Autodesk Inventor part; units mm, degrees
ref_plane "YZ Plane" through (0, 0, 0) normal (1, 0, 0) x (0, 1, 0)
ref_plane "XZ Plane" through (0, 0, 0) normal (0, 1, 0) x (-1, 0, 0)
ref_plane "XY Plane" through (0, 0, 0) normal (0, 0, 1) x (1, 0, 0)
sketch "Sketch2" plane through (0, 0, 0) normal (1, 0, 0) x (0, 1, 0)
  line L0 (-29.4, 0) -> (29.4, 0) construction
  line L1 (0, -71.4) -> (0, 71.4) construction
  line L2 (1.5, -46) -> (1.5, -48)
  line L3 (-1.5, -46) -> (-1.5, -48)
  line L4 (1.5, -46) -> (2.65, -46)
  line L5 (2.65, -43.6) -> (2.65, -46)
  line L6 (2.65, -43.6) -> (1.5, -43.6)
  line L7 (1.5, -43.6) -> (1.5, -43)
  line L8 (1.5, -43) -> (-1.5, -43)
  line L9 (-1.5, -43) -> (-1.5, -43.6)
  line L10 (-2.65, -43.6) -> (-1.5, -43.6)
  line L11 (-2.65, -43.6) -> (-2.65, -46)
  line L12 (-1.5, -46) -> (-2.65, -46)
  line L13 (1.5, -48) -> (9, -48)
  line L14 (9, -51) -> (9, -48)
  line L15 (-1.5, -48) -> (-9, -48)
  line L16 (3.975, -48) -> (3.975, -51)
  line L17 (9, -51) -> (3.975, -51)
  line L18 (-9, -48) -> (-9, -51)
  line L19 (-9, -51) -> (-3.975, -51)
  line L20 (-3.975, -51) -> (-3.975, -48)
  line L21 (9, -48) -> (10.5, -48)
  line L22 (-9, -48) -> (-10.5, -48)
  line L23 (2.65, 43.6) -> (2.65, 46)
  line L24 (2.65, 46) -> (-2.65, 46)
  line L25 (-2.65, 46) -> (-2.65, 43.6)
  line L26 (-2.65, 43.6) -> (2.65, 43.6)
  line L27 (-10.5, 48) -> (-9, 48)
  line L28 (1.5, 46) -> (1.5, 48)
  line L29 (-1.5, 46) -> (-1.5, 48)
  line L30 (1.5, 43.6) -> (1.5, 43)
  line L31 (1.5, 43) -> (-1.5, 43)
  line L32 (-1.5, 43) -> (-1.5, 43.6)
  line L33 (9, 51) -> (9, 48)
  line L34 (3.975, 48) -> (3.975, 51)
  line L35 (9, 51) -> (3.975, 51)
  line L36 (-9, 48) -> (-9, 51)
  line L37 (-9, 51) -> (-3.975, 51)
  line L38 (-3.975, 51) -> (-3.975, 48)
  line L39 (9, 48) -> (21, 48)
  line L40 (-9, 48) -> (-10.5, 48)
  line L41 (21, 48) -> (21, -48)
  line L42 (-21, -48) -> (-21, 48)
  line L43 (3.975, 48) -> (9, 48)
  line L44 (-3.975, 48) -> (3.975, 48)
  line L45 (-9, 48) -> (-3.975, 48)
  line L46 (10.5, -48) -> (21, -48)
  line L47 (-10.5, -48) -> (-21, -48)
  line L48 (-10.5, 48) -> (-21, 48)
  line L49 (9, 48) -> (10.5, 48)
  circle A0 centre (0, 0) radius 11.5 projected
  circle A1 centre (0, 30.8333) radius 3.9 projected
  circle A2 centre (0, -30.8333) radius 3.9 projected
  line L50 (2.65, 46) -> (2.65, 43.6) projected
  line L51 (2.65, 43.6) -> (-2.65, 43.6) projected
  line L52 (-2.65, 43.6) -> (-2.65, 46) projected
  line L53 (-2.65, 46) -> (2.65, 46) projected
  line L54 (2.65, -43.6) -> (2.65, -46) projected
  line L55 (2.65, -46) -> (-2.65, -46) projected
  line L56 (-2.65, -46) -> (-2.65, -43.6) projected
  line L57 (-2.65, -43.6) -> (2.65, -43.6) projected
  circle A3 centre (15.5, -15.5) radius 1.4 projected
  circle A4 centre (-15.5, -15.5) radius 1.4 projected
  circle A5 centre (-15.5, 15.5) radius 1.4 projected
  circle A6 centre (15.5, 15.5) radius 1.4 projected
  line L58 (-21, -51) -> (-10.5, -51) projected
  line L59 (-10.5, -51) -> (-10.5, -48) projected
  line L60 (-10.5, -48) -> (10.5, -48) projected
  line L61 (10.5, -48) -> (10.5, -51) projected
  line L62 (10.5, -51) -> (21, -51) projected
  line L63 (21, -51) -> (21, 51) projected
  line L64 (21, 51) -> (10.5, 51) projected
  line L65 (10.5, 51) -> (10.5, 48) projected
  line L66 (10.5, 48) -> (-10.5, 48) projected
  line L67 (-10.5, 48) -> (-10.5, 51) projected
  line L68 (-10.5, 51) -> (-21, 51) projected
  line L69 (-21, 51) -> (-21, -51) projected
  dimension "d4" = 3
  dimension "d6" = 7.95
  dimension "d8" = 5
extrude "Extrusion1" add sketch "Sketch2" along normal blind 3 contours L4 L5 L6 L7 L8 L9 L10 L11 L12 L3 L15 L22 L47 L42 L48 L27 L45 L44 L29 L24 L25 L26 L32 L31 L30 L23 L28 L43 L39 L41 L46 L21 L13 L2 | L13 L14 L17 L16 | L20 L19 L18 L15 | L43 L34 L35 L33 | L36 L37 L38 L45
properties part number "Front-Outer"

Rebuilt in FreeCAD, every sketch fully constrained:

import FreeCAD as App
import Part
import Sketcher

doc = App.newDocument("Part")
params = doc.addObject("Spreadsheet::Sheet", "Params")
for row, (alias, value) in enumerate([
    ("sketch1_width", "3 mm"),
    ("sketch1_diameter", "23 mm"),
    ("sketch1_diameter2", "2.8 mm"),
    ("sketch1_diameter3", "7.8 mm"),
    ("sketch1_width2", "12 mm"),
    ("pad1_length", "3 mm"),
], start=1):
    params.set(f"A{row}", alias)
    params.set(f"B{row}", "=" + value)
    params.setAlias(f"B{row}", alias)

body = doc.addObject("PartDesign::Body", "Body")

# Sketch on YZ plane
sketch1 = body.newObject("Sketcher::SketchObject", "Sketch")
sketch1.AttachmentSupport = (doc.getObject("YZ_Plane"), [""])
sketch1.MapMode = "FlatFace"
sketch1.addGeometry(Part.LineSegment(App.Vector(2.6, -46, 0), App.Vector(1.5, -46, 0)), False)
sketch1.addGeometry(Part.LineSegment(App.Vector(1.5, -46, 0), App.Vector(1.5, -48, 0)), False)
sketch1.addGeometry(Part.LineSegment(App.Vector(1.5, -48, 0), App.Vector(4, -48, 0)), False)
sketch1.addGeometry(Part.LineSegment(App.Vector(4, -48, 0), App.Vector(4, -51, 0)), False)
sketch1.addGeometry(Part.LineSegment(App.Vector(4, -51, 0), App.Vector(9, -51, 0)), False)
sketch1.addGeometry(Part.LineSegment(App.Vector(9, -51, 0), App.Vector(9, -48, 0)), False)
sketch1.addGeometry(Part.LineSegment(App.Vector(9, -48, 0), App.Vector(21, -48, 0)), False)
sketch1.addGeometry(Part.LineSegment(App.Vector(21, -48, 0), App.Vector(21, 48, 0)), False)
sketch1.addGeometry(Part.LineSegment(App.Vector(21, 48, 0), App.Vector(9, 48, 0)), False)
sketch1.addGeometry(Part.LineSegment(App.Vector(9, 48, 0), App.Vector(9, 51, 0)), False)
sketch1.addGeometry(Part.LineSegment(App.Vector(9, 51, 0), App.Vector(4, 51, 0)), False)
sketch1.addGeometry(Part.LineSegment(App.Vector(4, 51, 0), App.Vector(4, 48, 0)), False)
sketch1.addGeometry(Part.LineSegment(App.Vector(4, 48, 0), App.Vector(1.5, 48, 0)), False)
sketch1.addGeometry(Part.LineSegment(App.Vector(1.5, 48, 0), App.Vector(1.5, 46, 0)), False)
sketch1.addGeometry(Part.LineSegment(App.Vector(1.5, 46, 0), App.Vector(2.6, 46, 0)), False)
sketch1.addGeometry(Part.LineSegment(App.Vector(2.6, 46, 0), App.Vector(2.6, 43.6, 0)), False)
sketch1.addGeometry(Part.LineSegment(App.Vector(2.6, 43.6, 0), App.Vector(1.5, 43.6, 0)), False)
sketch1.addGeometry(Part.LineSegment(App.Vector(1.5, 43.6, 0), App.Vector(1.5, 43, 0)), False)
sketch1.addGeometry(Part.LineSegment(App.Vector(1.5, 43, 0), App.Vector(-1.5, 43, 0)), False)
sketch1.addGeometry(Part.LineSegment(App.Vector(-1.5, 43, 0), App.Vector(-1.5, 43.6, 0)), False)
sketch1.addGeometry(Part.LineSegment(App.Vector(-1.5, 43.6, 0), App.Vector(-2.6, 43.6, 0)), False)
sketch1.addGeometry(Part.LineSegment(App.Vector(-2.6, 43.6, 0), App.Vector(-2.6, 46, 0)), False)
sketch1.addGeometry(Part.LineSegment(App.Vector(-2.6, 46, 0), App.Vector(-1.5, 46, 0)), False)
sketch1.addGeometry(Part.LineSegment(App.Vector(-1.5, 46, 0), App.Vector(-1.5, 48, 0)), False)
sketch1.addGeometry(Part.LineSegment(App.Vector(-1.5, 48, 0), App.Vector(-4, 48, 0)), False)
sketch1.addGeometry(Part.LineSegment(App.Vector(-4, 48, 0), App.Vector(-4, 51, 0)), False)
sketch1.addGeometry(Part.LineSegment(App.Vector(-4, 51, 0), App.Vector(-9, 51, 0)), False)
sketch1.addGeometry(Part.LineSegment(App.Vector(-9, 51, 0), App.Vector(-9, 48, 0)), False)
sketch1.addGeometry(Part.LineSegment(App.Vector(-9, 48, 0), App.Vector(-21, 48, 0)), False)
sketch1.addGeometry(Part.LineSegment(App.Vector(-21, 48, 0), App.Vector(-21, -48, 0)), False)
sketch1.addGeometry(Part.LineSegment(App.Vector(-21, -48, 0), App.Vector(-9, -48, 0)), False)
sketch1.addGeometry(Part.LineSegment(App.Vector(-9, -48, 0), App.Vector(-9, -51, 0)), False)
sketch1.addGeometry(Part.LineSegment(App.Vector(-9, -51, 0), App.Vector(-4, -51, 0)), False)
sketch1.addGeometry(Part.LineSegment(App.Vector(-4, -51, 0), App.Vector(-4, -48, 0)), False)
sketch1.addGeometry(Part.LineSegment(App.Vector(-4, -48, 0), App.Vector(-1.5, -48, 0)), False)
sketch1.addGeometry(Part.LineSegment(App.Vector(-1.5, -48, 0), App.Vector(-1.5, -46, 0)), False)
sketch1.addGeometry(Part.LineSegment(App.Vector(-1.5, -46, 0), App.Vector(-2.6, -46, 0)), False)
sketch1.addGeometry(Part.LineSegment(App.Vector(-2.6, -46, 0), App.Vector(-2.6, -43.6, 0)), False)
sketch1.addGeometry(Part.LineSegment(App.Vector(-2.6, -43.6, 0), App.Vector(-1.5, -43.6, 0)), False)
sketch1.addGeometry(Part.LineSegment(App.Vector(-1.5, -43.6, 0), App.Vector(-1.5, -43, 0)), False)
sketch1.addGeometry(Part.LineSegment(App.Vector(-1.5, -43, 0), App.Vector(1.5, -43, 0)), False)
sketch1.addGeometry(Part.LineSegment(App.Vector(1.5, -43, 0), App.Vector(1.5, -43.6, 0)), False)
sketch1.addGeometry(Part.LineSegment(App.Vector(1.5, -43.6, 0), App.Vector(2.6, -43.6, 0)), False)
sketch1.addGeometry(Part.LineSegment(App.Vector(2.6, -43.6, 0), App.Vector(2.6, -46, 0)), False)
sketch1.addGeometry(Part.Circle(App.Vector(-15.5, -15.5, 0), App.Vector(0, 0, 1), 1.4), False)
sketch1.addGeometry(Part.Circle(App.Vector(0, -30.8, 0), App.Vector(0, 0, 1), 3.9), False)
sketch1.addGeometry(Part.Circle(App.Vector(15.5, -15.5, 0), App.Vector(0, 0, 1), 1.4), False)
sketch1.addGeometry(Part.Circle(App.Vector(-15.5, 15.5, 0), App.Vector(0, 0, 1), 1.4), False)
sketch1.addGeometry(Part.Circle(App.Vector(0, 0, 0), App.Vector(0, 0, 1), 11.5), False)
sketch1.addGeometry(Part.Circle(App.Vector(15.5, 15.5, 0), App.Vector(0, 0, 1), 1.4), False)
sketch1.addGeometry(Part.Circle(App.Vector(0, 30.8, 0), App.Vector(0, 0, 1), 3.9), False)
sketch1.addConstraint(Sketcher.Constraint("Coincident", 0, 2, 1, 1))
sketch1.addConstraint(Sketcher.Constraint("Coincident", 1, 2, 2, 1))
sketch1.addConstraint(Sketcher.Constraint("Coincident", 2, 2, 3, 1))
sketch1.addConstraint(Sketcher.Constraint("Coincident", 3, 2, 4, 1))
sketch1.addConstraint(Sketcher.Constraint("Coincident", 4, 2, 5, 1))
sketch1.addConstraint(Sketcher.Constraint("Coincident", 5, 2, 6, 1))
sketch1.addConstraint(Sketcher.Constraint("Coincident", 6, 2, 7, 1))
sketch1.addConstraint(Sketcher.Constraint("Coincident", 7, 2, 8, 1))
sketch1.addConstraint(Sketcher.Constraint("Coincident", 8, 2, 9, 1))
sketch1.addConstraint(Sketcher.Constraint("Coincident", 9, 2, 10, 1))
sketch1.addConstraint(Sketcher.Constraint("Coincident", 10, 2, 11, 1))
sketch1.addConstraint(Sketcher.Constraint("Coincident", 11, 2, 12, 1))
sketch1.addConstraint(Sketcher.Constraint("Coincident", 12, 2, 13, 1))
sketch1.addConstraint(Sketcher.Constraint("Coincident", 13, 2, 14, 1))
sketch1.addConstraint(Sketcher.Constraint("Coincident", 14, 2, 15, 1))
sketch1.addConstraint(Sketcher.Constraint("Coincident", 15, 2, 16, 1))
sketch1.addConstraint(Sketcher.Constraint("Coincident", 16, 2, 17, 1))
sketch1.addConstraint(Sketcher.Constraint("Coincident", 17, 2, 18, 1))
sketch1.addConstraint(Sketcher.Constraint("Coincident", 18, 2, 19, 1))
sketch1.addConstraint(Sketcher.Constraint("Coincident", 19, 2, 20, 1))
sketch1.addConstraint(Sketcher.Constraint("Coincident", 20, 2, 21, 1))
sketch1.addConstraint(Sketcher.Constraint("Coincident", 21, 2, 22, 1))
sketch1.addConstraint(Sketcher.Constraint("Coincident", 22, 2, 23, 1))
sketch1.addConstraint(Sketcher.Constraint("Coincident", 23, 2, 24, 1))
sketch1.addConstraint(Sketcher.Constraint("Coincident", 24, 2, 25, 1))
sketch1.addConstraint(Sketcher.Constraint("Coincident", 25, 2, 26, 1))
sketch1.addConstraint(Sketcher.Constraint("Coincident", 26, 2, 27, 1))
sketch1.addConstraint(Sketcher.Constraint("Coincident", 27, 2, 28, 1))
sketch1.addConstraint(Sketcher.Constraint("Coincident", 28, 2, 29, 1))
sketch1.addConstraint(Sketcher.Constraint("Coincident", 29, 2, 30, 1))
sketch1.addConstraint(Sketcher.Constraint("Coincident", 30, 2, 31, 1))
sketch1.addConstraint(Sketcher.Constraint("Coincident", 31, 2, 32, 1))
sketch1.addConstraint(Sketcher.Constraint("Coincident", 32, 2, 33, 1))
sketch1.addConstraint(Sketcher.Constraint("Coincident", 33, 2, 34, 1))
sketch1.addConstraint(Sketcher.Constraint("Coincident", 34, 2, 35, 1))
sketch1.addConstraint(Sketcher.Constraint("Coincident", 35, 2, 36, 1))
sketch1.addConstraint(Sketcher.Constraint("Coincident", 36, 2, 37, 1))
sketch1.addConstraint(Sketcher.Constraint("Coincident", 37, 2, 38, 1))
sketch1.addConstraint(Sketcher.Constraint("Coincident", 38, 2, 39, 1))
sketch1.addConstraint(Sketcher.Constraint("Coincident", 39, 2, 40, 1))
sketch1.addConstraint(Sketcher.Constraint("Coincident", 40, 2, 41, 1))
sketch1.addConstraint(Sketcher.Constraint("Coincident", 41, 2, 42, 1))
sketch1.addConstraint(Sketcher.Constraint("Coincident", 42, 2, 43, 1))
sketch1.addConstraint(Sketcher.Constraint("Coincident", 43, 2, 0, 1))
sketch1.addConstraint(Sketcher.Constraint("Horizontal", 0))
sketch1.addConstraint(Sketcher.Constraint("Vertical", 1))
sketch1.addConstraint(Sketcher.Constraint("Horizontal", 2))
sketch1.addConstraint(Sketcher.Constraint("Vertical", 3))
sketch1.addConstraint(Sketcher.Constraint("Horizontal", 4))
sketch1.addConstraint(Sketcher.Constraint("Vertical", 5))
sketch1.addConstraint(Sketcher.Constraint("Horizontal", 6))
sketch1.addConstraint(Sketcher.Constraint("Vertical", 7))
sketch1.addConstraint(Sketcher.Constraint("Horizontal", 8))
sketch1.addConstraint(Sketcher.Constraint("Vertical", 9))
sketch1.addConstraint(Sketcher.Constraint("Horizontal", 10))
sketch1.addConstraint(Sketcher.Constraint("Vertical", 11))
sketch1.addConstraint(Sketcher.Constraint("Horizontal", 12))
sketch1.addConstraint(Sketcher.Constraint("Vertical", 13))
sketch1.addConstraint(Sketcher.Constraint("Horizontal", 14))
sketch1.addConstraint(Sketcher.Constraint("Vertical", 15))
sketch1.addConstraint(Sketcher.Constraint("Horizontal", 16))
sketch1.addConstraint(Sketcher.Constraint("Vertical", 17))
sketch1.addConstraint(Sketcher.Constraint("Horizontal", 18))
sketch1.addConstraint(Sketcher.Constraint("Vertical", 19))
sketch1.addConstraint(Sketcher.Constraint("Horizontal", 20))
sketch1.addConstraint(Sketcher.Constraint("Vertical", 21))
sketch1.addConstraint(Sketcher.Constraint("Horizontal", 22))
sketch1.addConstraint(Sketcher.Constraint("Vertical", 23))
sketch1.addConstraint(Sketcher.Constraint("Horizontal", 24))
sketch1.addConstraint(Sketcher.Constraint("Vertical", 25))
sketch1.addConstraint(Sketcher.Constraint("Horizontal", 26))
sketch1.addConstraint(Sketcher.Constraint("Vertical", 27))
sketch1.addConstraint(Sketcher.Constraint("Horizontal", 28))
sketch1.addConstraint(Sketcher.Constraint("Vertical", 29))
sketch1.addConstraint(Sketcher.Constraint("Horizontal", 30))
sketch1.addConstraint(Sketcher.Constraint("Vertical", 31))
sketch1.addConstraint(Sketcher.Constraint("Horizontal", 32))
sketch1.addConstraint(Sketcher.Constraint("Vertical", 33))
sketch1.addConstraint(Sketcher.Constraint("Horizontal", 34))
sketch1.addConstraint(Sketcher.Constraint("Vertical", 35))
sketch1.addConstraint(Sketcher.Constraint("Horizontal", 36))
sketch1.addConstraint(Sketcher.Constraint("Vertical", 37))
sketch1.addConstraint(Sketcher.Constraint("Horizontal", 38))
sketch1.addConstraint(Sketcher.Constraint("Vertical", 39))
sketch1.addConstraint(Sketcher.Constraint("Horizontal", 40))
sketch1.addConstraint(Sketcher.Constraint("Vertical", 41))
sketch1.addConstraint(Sketcher.Constraint("Horizontal", 42))
sketch1.addConstraint(Sketcher.Constraint("Vertical", 43))
sketch1.addConstraint(Sketcher.Constraint("Coincident", 48, 3, -1, 1))
sketch1.addConstraint(Sketcher.Constraint("Equal", 44, 46))
sketch1.addConstraint(Sketcher.Constraint("Equal", 46, 47))
sketch1.addConstraint(Sketcher.Constraint("Equal", 47, 49))
sketch1.addConstraint(Sketcher.Constraint("Equal", 45, 50))
sketch1.addConstraint(Sketcher.Constraint("Symmetric", 46, 3, 47, 3, -1, 1))
sketch1.addConstraint(Sketcher.Constraint("Symmetric", 44, 3, 49, 3, -1, 1))
sketch1.addConstraint(Sketcher.Constraint("Symmetric", 45, 3, 50, 3, -1, 1))
sketch1.addConstraint(Sketcher.Constraint("Symmetric", 0, 2, 22, 2, -1, 1))
sketch1.addConstraint(Sketcher.Constraint("Symmetric", 2, 2, 24, 2, -1, 1))
sketch1.addConstraint(Sketcher.Constraint("Symmetric", 4, 2, 26, 2, -1, 1))
sketch1.addConstraint(Sketcher.Constraint("Symmetric", 6, 2, 28, 2, -1, 1))
sketch1.addConstraint(Sketcher.Constraint("Symmetric", 8, 2, 30, 2, -1, 1))
sketch1.addConstraint(Sketcher.Constraint("Symmetric", 10, 2, 32, 2, -1, 1))
sketch1.addConstraint(Sketcher.Constraint("Symmetric", 12, 2, 34, 2, -1, 1))
sketch1.addConstraint(Sketcher.Constraint("Symmetric", 14, 2, 36, 2, -1, 1))
sketch1.addConstraint(Sketcher.Constraint("Symmetric", 16, 2, 38, 2, -1, 1))
sketch1.addConstraint(Sketcher.Constraint("Symmetric", 18, 2, 40, 2, -1, 1))
sketch1.addConstraint(Sketcher.Constraint("Symmetric", 20, 2, 42, 2, -1, 1))
sketch1.addConstraint(Sketcher.Constraint("Symmetric", 44, 3, 46, 3, -2))
sketch1.addConstraint(Sketcher.Constraint("Symmetric", 16, 2, 19, 2, -2))
sketch1.addConstraint(Sketcher.Constraint("Symmetric", 14, 2, 21, 2, -2))
sketch1.addConstraint(Sketcher.Constraint("Symmetric", 12, 2, 23, 2, -2))
sketch1.addConstraint(Sketcher.Constraint("Symmetric", 10, 2, 25, 2, -2))
sketch1.addConstraint(Sketcher.Constraint("Symmetric", 8, 2, 27, 2, -2))
sketch1.addConstraint(Sketcher.Constraint("PointOnObject", 45, 3, -2))
sketch1.addConstraint(Sketcher.Constraint("Horizontal", 2, 2, 5, 2))
sketch1.addConstraint(Sketcher.Constraint("Vertical", 13, 2, 16, 2))
sketch1.addConstraint(Sketcher.Constraint("Equal", 40, 3))
sketch1.addConstraint(Sketcher.Constraint("DistanceX", 18, 2, 18, 1, 3.0))
sketch1.addConstraint(Sketcher.Constraint("Diameter", 48, 23.0))
sketch1.addConstraint(Sketcher.Constraint("DistanceY", 3, 2, 0, 2, 5.0))
sketch1.addConstraint(Sketcher.Constraint("DistanceY", 17, 2, 13, 2, 3.0))
sketch1.addConstraint(Sketcher.Constraint("Diameter", 44, 2.8))
sketch1.addConstraint(Sketcher.Constraint("Diameter", 45, 7.8))
sketch1.addConstraint(Sketcher.Constraint("DistanceX", 6, 1, 6, 2, 12.0))
sketch1.addConstraint(Sketcher.Constraint("DistanceY", 7, 1, 7, 2, 96.0))
sketch1.addConstraint(Sketcher.Constraint("DistanceX", 32, 2, 3, 2, 7.95))
sketch1.addConstraint(Sketcher.Constraint("DistanceY", 15, 2, 15, 1, 2.4))
sketch1.addConstraint(Sketcher.Constraint("DistanceX", -1, 1, 4, 2, 9.0))
sketch1.addConstraint(Sketcher.Constraint("DistanceX", 44, 3, 46, 3, 31.0))
sketch1.addConstraint(Sketcher.Constraint("DistanceY", 44, 3, 47, 3, 31.0))
sketch1.addConstraint(Sketcher.Constraint("DistanceX", 0, 2, 0, 1, 1.15))
sketch1.addConstraint(Sketcher.Constraint("DistanceY", 45, 3, -1, 1, 30.8333))
sketch1.setExpression("Constraints[117]", "Params.sketch1_width")
sketch1.setExpression("Constraints[118]", "Params.sketch1_diameter")
sketch1.setExpression("Constraints[121]", "Params.sketch1_diameter2")
sketch1.setExpression("Constraints[122]", "Params.sketch1_diameter3")
sketch1.setExpression("Constraints[123]", "Params.sketch1_width2")
pad1 = body.newObject("PartDesign::Pad", "Pad")
pad1.Profile = sketch1
pad1.setExpression("Length", "Params.pad1_length")

doc.recompute()
